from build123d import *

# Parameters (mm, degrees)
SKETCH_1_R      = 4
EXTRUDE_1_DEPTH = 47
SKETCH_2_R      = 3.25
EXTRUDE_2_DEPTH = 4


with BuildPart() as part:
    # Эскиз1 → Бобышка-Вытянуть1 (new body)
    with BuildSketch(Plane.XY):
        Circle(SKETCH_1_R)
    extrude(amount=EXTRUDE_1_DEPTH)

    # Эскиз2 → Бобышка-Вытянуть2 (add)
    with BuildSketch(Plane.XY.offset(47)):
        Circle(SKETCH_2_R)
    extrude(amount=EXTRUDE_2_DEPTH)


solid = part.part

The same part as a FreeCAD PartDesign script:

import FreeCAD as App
import Part
import Sketcher
from FreeCAD import Vector

doc = App.newDocument("Part")
body = doc.addObject("PartDesign::Body", "Body")

sketch1 = doc.addObject("Sketcher::SketchObject", "Sketch")
body.addObject(sketch1)
sketch1.AttachmentSupport = (doc.XY_Plane, [""])
sketch1.MapMode = "FlatFace"
sketch1.addGeometry(Part.Circle(Vector(0, 0, 0), Vector(0, 0, 1), 4), False)
sketch1.addConstraint(Sketcher.Constraint("Coincident", 0, 3, -1, 1))
sketch1.addConstraint(Sketcher.Constraint("Diameter", 0, 8.0))
pad1 = doc.addObject("PartDesign::Pad", "Pad")
body.addObject(pad1)
pad1.Profile = sketch1
pad1.Length = 47

sketch2 = doc.addObject("Sketcher::SketchObject", "Sketch001")
body.addObject(sketch2)
sketch2.AttachmentSupport = (doc.XY_Plane, [""])
sketch2.MapMode = "FlatFace"
sketch2.AttachmentOffset = App.Placement(Vector(0, 0, 47), App.Rotation())
sketch2.addGeometry(Part.Circle(Vector(0, 0, 0), Vector(0, 0, 1), 3.2), False)
sketch2.addConstraint(Sketcher.Constraint("Coincident", 0, 3, -1, 1))
sketch2.addConstraint(Sketcher.Constraint("Diameter", 0, 6.5))
pad2 = doc.addObject("PartDesign::Pad", "Pad001")
body.addObject(pad2)
pad2.Profile = sketch2
pad2.Length = 4

doc.recompute()
